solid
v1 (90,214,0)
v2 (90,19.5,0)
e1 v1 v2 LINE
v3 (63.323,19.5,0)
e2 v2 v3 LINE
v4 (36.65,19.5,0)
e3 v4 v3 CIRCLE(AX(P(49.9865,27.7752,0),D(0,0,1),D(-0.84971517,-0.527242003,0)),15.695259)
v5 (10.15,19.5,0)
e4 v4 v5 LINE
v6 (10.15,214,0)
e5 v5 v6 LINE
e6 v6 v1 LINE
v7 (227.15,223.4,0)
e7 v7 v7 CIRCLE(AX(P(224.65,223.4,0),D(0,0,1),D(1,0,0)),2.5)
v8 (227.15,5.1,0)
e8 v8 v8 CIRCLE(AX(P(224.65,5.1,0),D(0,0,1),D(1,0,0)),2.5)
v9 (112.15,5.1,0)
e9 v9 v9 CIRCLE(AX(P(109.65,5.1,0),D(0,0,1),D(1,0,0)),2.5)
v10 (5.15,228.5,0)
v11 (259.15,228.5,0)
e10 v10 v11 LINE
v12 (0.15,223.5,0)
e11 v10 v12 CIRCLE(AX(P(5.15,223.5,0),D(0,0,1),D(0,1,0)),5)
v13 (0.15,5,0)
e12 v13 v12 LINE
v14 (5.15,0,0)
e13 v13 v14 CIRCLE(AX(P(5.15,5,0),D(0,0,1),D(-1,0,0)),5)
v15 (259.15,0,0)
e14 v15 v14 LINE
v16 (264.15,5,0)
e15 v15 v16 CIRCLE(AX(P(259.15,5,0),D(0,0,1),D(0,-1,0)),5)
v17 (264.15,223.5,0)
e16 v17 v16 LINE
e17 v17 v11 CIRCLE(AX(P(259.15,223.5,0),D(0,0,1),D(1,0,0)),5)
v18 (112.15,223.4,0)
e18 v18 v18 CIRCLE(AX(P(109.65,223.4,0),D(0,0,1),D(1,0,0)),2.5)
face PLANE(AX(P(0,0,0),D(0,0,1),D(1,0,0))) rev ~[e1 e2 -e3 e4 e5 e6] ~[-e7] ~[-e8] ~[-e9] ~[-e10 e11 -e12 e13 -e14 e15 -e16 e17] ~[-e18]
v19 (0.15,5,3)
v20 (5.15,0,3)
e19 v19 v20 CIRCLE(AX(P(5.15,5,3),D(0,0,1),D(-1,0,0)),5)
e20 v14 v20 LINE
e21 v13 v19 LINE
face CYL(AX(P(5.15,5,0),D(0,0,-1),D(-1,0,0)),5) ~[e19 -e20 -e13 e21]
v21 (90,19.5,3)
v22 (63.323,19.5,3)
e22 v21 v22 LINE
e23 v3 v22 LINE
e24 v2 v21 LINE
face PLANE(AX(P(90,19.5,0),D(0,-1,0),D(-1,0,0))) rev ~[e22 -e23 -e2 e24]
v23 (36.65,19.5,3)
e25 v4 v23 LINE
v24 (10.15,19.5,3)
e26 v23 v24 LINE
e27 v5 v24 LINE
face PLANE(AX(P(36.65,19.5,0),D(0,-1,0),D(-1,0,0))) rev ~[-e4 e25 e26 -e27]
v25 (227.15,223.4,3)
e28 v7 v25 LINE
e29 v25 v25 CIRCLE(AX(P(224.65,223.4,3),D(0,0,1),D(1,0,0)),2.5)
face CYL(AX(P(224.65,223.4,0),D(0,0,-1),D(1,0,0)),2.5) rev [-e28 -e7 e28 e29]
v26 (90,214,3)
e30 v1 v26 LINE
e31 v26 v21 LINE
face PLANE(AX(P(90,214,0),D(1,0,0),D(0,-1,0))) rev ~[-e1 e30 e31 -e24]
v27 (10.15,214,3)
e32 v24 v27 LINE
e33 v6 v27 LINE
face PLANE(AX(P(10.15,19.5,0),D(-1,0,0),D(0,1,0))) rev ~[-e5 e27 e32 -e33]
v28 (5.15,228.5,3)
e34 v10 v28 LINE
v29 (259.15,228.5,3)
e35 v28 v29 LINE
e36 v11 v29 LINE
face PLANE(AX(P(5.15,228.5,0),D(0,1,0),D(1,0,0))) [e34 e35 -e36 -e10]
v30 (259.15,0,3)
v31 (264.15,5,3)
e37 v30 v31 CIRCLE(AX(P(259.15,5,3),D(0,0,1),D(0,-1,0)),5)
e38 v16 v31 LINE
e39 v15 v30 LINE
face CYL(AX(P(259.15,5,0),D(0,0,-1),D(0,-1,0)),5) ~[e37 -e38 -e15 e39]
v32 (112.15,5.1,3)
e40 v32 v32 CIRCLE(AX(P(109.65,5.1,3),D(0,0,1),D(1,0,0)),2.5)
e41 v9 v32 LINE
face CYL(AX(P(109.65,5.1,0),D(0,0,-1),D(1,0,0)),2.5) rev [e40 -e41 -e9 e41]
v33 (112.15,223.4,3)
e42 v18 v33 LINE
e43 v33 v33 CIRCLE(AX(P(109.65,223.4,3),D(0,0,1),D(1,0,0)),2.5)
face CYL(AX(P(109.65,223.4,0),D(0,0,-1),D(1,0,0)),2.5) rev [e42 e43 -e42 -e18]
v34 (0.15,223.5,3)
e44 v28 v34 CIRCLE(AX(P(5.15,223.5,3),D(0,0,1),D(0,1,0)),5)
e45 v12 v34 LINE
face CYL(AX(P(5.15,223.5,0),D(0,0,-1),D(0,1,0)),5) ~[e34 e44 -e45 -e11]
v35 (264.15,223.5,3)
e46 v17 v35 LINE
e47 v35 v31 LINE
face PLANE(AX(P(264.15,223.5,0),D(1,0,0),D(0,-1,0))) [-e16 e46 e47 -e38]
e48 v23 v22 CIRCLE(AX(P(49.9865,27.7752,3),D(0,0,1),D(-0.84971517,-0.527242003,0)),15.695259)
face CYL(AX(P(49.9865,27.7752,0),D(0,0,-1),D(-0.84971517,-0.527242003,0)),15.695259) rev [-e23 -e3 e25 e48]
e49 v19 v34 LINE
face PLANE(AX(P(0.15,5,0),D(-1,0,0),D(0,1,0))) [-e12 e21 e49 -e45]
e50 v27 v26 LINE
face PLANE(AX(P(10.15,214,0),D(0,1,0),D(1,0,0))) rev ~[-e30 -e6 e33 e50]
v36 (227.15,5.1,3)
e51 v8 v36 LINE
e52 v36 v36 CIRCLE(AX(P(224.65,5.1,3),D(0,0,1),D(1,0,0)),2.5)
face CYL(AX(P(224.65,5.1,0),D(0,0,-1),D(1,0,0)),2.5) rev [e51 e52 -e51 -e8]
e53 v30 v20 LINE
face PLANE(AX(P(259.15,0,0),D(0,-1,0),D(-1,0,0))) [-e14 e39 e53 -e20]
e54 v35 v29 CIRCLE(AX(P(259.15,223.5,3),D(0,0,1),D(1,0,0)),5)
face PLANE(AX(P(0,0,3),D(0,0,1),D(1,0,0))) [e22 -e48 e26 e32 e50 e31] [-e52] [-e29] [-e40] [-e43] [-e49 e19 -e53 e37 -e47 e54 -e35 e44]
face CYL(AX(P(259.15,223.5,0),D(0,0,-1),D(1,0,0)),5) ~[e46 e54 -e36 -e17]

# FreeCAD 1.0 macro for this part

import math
import FreeCAD as App
import Part
import Sketcher
from FreeCAD import Vector
Q = App.Units.Quantity

doc = App.newDocument("Part")
body = doc.addObject("PartDesign::Body", "Body")

sketch1 = body.newObject("Sketcher::SketchObject", "Sketch")
sketch1.AttachmentSupport = (doc.getObject("XY_Plane"), [""])
sketch1.MapMode = "FlatFace"
sketch1.addGeometry([
    Part.LineSegment(Vector(259.1, 228.5, 0), Vector(5.2, 228.5, 0)),
    Part.ArcOfCircle(Part.Circle(Vector(5.2, 223.5, 0), Vector(0, 0, 1), 5), math.radians(90), math.radians(180)),
    Part.LineSegment(Vector(0.1, 223.5, 0), Vector(0.1, 5, 0)),
    Part.ArcOfCircle(Part.Circle(Vector(5.2, 5, 0), Vector(0, 0, 1), 5), math.radians(180), math.radians(270)),
    Part.LineSegment(Vector(5.2, 0, 0), Vector(259.1, 0, 0)),
    Part.ArcOfCircle(Part.Circle(Vector(259.1, 5, 0), Vector(0, 0, 1), 5), math.radians(-90), math.radians(0)),
    Part.LineSegment(Vector(264.1, 5, 0), Vector(264.1, 223.5, 0)),
    Part.ArcOfCircle(Part.Circle(Vector(259.1, 223.5, 0), Vector(0, 0, 1), 5), math.radians(0), math.radians(90)),
    Part.Circle(Vector(109.7, 5.1, 0), Vector(0, 0, 1), 2.5),
    Part.LineSegment(Vector(10.2, 19.5, 0), Vector(10.2, 214, 0)),
    Part.LineSegment(Vector(10.2, 214, 0), Vector(90, 214, 0)),
    Part.LineSegment(Vector(90, 214, 0), Vector(90, 19.5, 0)),
    Part.LineSegment(Vector(90, 19.5, 0), Vector(63.3, 19.5, 0)),
    Part.ArcOfCircle(Part.Circle(Vector(50, 27.8, 0), Vector(0, 0, 1), 15.7), math.radians(-148), math.radians(-32)),
    Part.LineSegment(Vector(36.6, 19.5, 0), Vector(10.2, 19.5, 0)),
    Part.Circle(Vector(224.7, 5.1, 0), Vector(0, 0, 1), 2.5),
    Part.Circle(Vector(109.7, 223.4, 0), Vector(0, 0, 1), 2.5),
    Part.Circle(Vector(224.7, 223.4, 0), Vector(0, 0, 1), 2.5),
], False)
sketch1.addConstraint([
    Sketcher.Constraint("Tangent", 0, 2, 1, 1),
    Sketcher.Constraint("Tangent", 1, 2, 2, 1),
    Sketcher.Constraint("Tangent", 2, 2, 3, 1),
    Sketcher.Constraint("Tangent", 3, 2, 4, 1),
    Sketcher.Constraint("Tangent", 4, 2, 5, 1),
    Sketcher.Constraint("Tangent", 5, 2, 6, 1),
    Sketcher.Constraint("Tangent", 6, 2, 7, 1),
    Sketcher.Constraint("Tangent", 7, 2, 0, 1),
    Sketcher.Constraint("Coincident", 9, 2, 10, 1),
    Sketcher.Constraint("Coincident", 10, 2, 11, 1),
    Sketcher.Constraint("Coincident", 11, 2, 12, 1),
    Sketcher.Constraint("Coincident", 12, 2, 13, 2),
    Sketcher.Constraint("Coincident", 13, 1, 14, 1),
    Sketcher.Constraint("Coincident", 14, 2, 9, 1),
    Sketcher.Constraint("Horizontal", 0),
    Sketcher.Constraint("Vertical", 2),
    Sketcher.Constraint("Horizontal", 4),
    Sketcher.Constraint("Vertical", 6),
    Sketcher.Constraint("Vertical", 9),
    Sketcher.Constraint("Horizontal", 10),
    Sketcher.Constraint("Vertical", 11),
    Sketcher.Constraint("Horizontal", 12),
    Sketcher.Constraint("Horizontal", 14),
    Sketcher.Constraint("Equal", 1, 3),
    Sketcher.Constraint("Equal", 3, 5),
    Sketcher.Constraint("Equal", 5, 7),
    Sketcher.Constraint("Equal", 8, 15),
    Sketcher.Constraint("Equal", 15, 16),
    Sketcher.Constraint("Equal", 16, 17),
    Sketcher.Constraint("PointOnObject", 3, 2, -1),
    Sketcher.Constraint("Horizontal", 8, 3, 15, 3),
    Sketcher.Constraint("Horizontal", 16, 3, 17, 3),
    Sketcher.Constraint("Horizontal", 12, 2, 13, 1),
    Sketcher.Constraint("Vertical", 8, 3, 16, 3),
    Sketcher.Constraint("Vertical", 15, 3, 17, 3),
    Sketcher.Constraint("Diameter", 8, Q("5 mm")),
    Sketcher.Constraint("Radius", 1, Q("5 mm")),
    Sketcher.Constraint("DistanceX", 14, 2, 14, 1, Q("26.5 mm")),
    Sketcher.Constraint("DistanceX", 1, 3, 9, 2, Q("5 mm")),
    Sketcher.Constraint("DistanceX", 10, 1, 10, 2, Q("79.85 mm")),
    Sketcher.Constraint("DistanceY", -1, 1, 0, 2, Q("228.5 mm")),
    Sketcher.Constraint("DistanceY", 9, 2, 0, 2, Q("14.5 mm")),
    Sketcher.Constraint("DistanceY", 3, 3, 11, 2, Q("14.5 mm")),
    Sketcher.Constraint("DistanceX", 0, 2, 0, 1, Q("254 mm")),
    Sketcher.Constraint("DistanceX", -1, 1, 10, 2, Q("90 mm")),
    Sketcher.Constraint("DistanceX", 8, 3, 15, 3, Q("115 mm")),
    Sketcher.Constraint("DistanceY", -1, 1, 8, 3, Q("5.1 mm")),
    Sketcher.Constraint("DistanceY", -1, 1, 16, 3, Q("223.4 mm")),
    Sketcher.Constraint("Radius", 13, Q("15.6953 mm")),
    Sketcher.Constraint("DistanceX", 3, 3, 8, 3, Q("104.5 mm")),
    Sketcher.Constraint("DistanceX", 12, 2, 12, 1, Q("26.677 mm")),
])
pad1 = body.newObject("PartDesign::Pad", "Pad")
pad1.Profile = sketch1
pad1.Length = 3

doc.recompute()
